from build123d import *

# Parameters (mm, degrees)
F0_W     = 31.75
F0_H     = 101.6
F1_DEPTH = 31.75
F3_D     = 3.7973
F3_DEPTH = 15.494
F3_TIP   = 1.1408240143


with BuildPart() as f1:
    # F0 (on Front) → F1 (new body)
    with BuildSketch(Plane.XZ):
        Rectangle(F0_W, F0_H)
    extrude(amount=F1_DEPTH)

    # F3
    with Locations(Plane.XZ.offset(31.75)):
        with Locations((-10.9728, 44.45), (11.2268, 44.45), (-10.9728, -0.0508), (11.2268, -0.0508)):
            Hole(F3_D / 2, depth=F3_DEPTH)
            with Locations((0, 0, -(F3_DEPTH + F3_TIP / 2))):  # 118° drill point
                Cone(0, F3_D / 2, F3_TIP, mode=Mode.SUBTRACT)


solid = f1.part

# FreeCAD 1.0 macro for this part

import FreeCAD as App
import Part
import Sketcher
from FreeCAD import Vector
Q = App.Units.Quantity

doc = App.newDocument("Part")
body = doc.addObject("PartDesign::Body", "Body")

# Sketch on XZ plane
sketch1 = body.newObject("Sketcher::SketchObject", "Sketch")
sketch1.AttachmentSupport = (doc.getObject("XZ_Plane"), [""])
sketch1.MapMode = "FlatFace"
sketch1.addGeometry([
    Part.LineSegment(Vector(-16, 51, 0), Vector(-16, -51, 0)),
    Part.LineSegment(Vector(-16, -51, 0), Vector(16, -51, 0)),
    Part.LineSegment(Vector(16, -51, 0), Vector(16, 51, 0)),
    Part.LineSegment(Vector(16, 51, 0), Vector(-16, 51, 0)),
], False)
sketch1.addConstraint([
    Sketcher.Constraint("Coincident", 0, 2, 1, 1),
    Sketcher.Constraint("Coincident", 1, 2, 2, 1),
    Sketcher.Constraint("Coincident", 2, 2, 3, 1),
    Sketcher.Constraint("Coincident", 3, 2, 0, 1),
    Sketcher.Constraint("Vertical", 0),
    Sketcher.Constraint("Horizontal", 1),
    Sketcher.Constraint("Vertical", 2),
    Sketcher.Constraint("Horizontal", 3),
    Sketcher.Constraint("Symmetric", 0, 2, 2, 2, -1, 1),
    Sketcher.Constraint("DistanceY", 0, 2, 0, 1, Q("4 in")),
    Sketcher.Constraint("DistanceX", 1, 1, 1, 2, Q("1.25 in")),
])
pad1 = body.newObject("PartDesign::Pad", "Pad")
pad1.Profile = sketch1
pad1.Length = Q("1.25 in")

# Sketch on XZ plane
sketch2 = body.newObject("Sketcher::SketchObject", "Sketch001")
sketch2.AttachmentSupport = (doc.getObject("XZ_Plane"), [""])
sketch2.MapMode = "FlatFace"
sketch2.AttachmentOffset = App.Placement(Vector(0, 0, 1.25 * 25.4), App.Rotation())
sketch2.addGeometry([
    Part.Circle(Vector(-11, 44.5, 0), Vector(0, 0, 1), 1.9),
    Part.Circle(Vector(11.2, 44.5, 0), Vector(0, 0, 1), 1.9),
    Part.Circle(Vector(-11, -0.1, 0), Vector(0, 0, 1), 1.9),
    Part.Circle(Vector(11.2, -0.1, 0), Vector(0, 0, 1), 1.9),
], False)
sketch2.addConstraint([
    Sketcher.Constraint("Equal", 0, 1),
    Sketcher.Constraint("Equal", 1, 2),
    Sketcher.Constraint("Equal", 2, 3),
    Sketcher.Constraint("Horizontal", 0, 3, 1, 3),
    Sketcher.Constraint("Horizontal", 2, 3, 3, 3),
    Sketcher.Constraint("Vertical", 0, 3, 2, 3),
    Sketcher.Constraint("Vertical", 1, 3, 3, 3),
    Sketcher.Constraint("Diameter", 0, Q("0.1495 in")),
    Sketcher.Constraint("DistanceY", -1, 1, 0, 3, Q("1.75 in")),
    Sketcher.Constraint("DistanceX", 0, 3, -1, 1, Q("0.432 in")),
    Sketcher.Constraint("DistanceX", -1, 1, 1, 3, Q("0.442 in")),
    Sketcher.Constraint("DistanceY", 2, 3, -1, 1, Q("0.002 in")),
])
doc.recompute()
hole = body.newObject("PartDesign::Hole", "Hole")
hole.Profile = sketch2
hole.ThreadType = "None"
hole.Diameter = Q("0.1495 in")
hole.DepthType = "Dimension"
hole.Depth = Q("0.61 in")
hole.DrillPoint = "Angled"
hole.DrillPointAngle = 118

doc.recompute()
